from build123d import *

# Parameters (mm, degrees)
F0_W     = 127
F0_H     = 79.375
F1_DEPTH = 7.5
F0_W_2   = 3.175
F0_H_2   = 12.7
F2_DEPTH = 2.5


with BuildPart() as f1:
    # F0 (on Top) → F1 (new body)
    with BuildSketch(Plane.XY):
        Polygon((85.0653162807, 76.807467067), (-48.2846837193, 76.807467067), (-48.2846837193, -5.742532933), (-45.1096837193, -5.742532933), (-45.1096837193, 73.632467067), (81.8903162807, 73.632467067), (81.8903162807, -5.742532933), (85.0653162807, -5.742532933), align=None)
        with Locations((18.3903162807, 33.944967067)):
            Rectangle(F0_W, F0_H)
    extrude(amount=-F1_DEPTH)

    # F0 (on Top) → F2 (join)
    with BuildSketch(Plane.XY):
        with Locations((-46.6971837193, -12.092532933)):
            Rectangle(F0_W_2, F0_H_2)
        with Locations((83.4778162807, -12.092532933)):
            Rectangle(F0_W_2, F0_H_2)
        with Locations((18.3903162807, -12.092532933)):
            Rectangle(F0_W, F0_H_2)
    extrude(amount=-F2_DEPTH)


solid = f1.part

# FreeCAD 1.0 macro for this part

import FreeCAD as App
import Part
import Sketcher
Q = App.Units.Quantity


def add_polygon(sketch, points):
    """Adds a closed chain of lines whose ends are joined by coincident constraints."""
    first, n = sketch.GeometryCount, len(points)
    for a, b in zip(points, points[1:] + points[:1]):
        sketch.addGeometry(Part.LineSegment(App.Vector(*a, 0), App.Vector(*b, 0)), False)
    for i in range(n):
        sketch.addConstraint(Sketcher.Constraint("Coincident", first + i, 2, first + (i + 1) % n, 1))

doc = App.newDocument("Part")
body = doc.addObject("PartDesign::Body", "Body")

sketch1 = doc.addObject("Sketcher::SketchObject", "Sketch")
body.addObject(sketch1)
sketch1.AttachmentSupport = (doc.XY_Plane, [""])
sketch1.MapMode = "FlatFace"
add_polygon(sketch1, [(85, 77), (-48, 77), (-48, -6), (85, -6)])
sketch1.addConstraint([
    Sketcher.Constraint("Horizontal", 0),
    Sketcher.Constraint("Vertical", 1),
    Sketcher.Constraint("Horizontal", 2),
    Sketcher.Constraint("Vertical", 3),
    Sketcher.Constraint("DistanceX", 0, 2, 0, 1, Q("5.25 in")),
    Sketcher.Constraint("DistanceY", 1, 2, 1, 1, Q("3.25 in")),
    Sketcher.Constraint("DistanceX", 0, 2, -1, 1, 48.284684),
    Sketcher.Constraint("DistanceY", -1, 1, 0, 2, 76.807467),
])
pad1 = doc.addObject("PartDesign::Pad", "Pad")
body.addObject(pad1)
pad1.Profile = sketch1
pad1.Length = 7.5
pad1.Reversed = True

sketch2 = doc.addObject("Sketcher::SketchObject", "Sketch001")
body.addObject(sketch2)
sketch2.AttachmentSupport = (doc.XY_Plane, [""])
sketch2.MapMode = "FlatFace"
add_polygon(sketch2, [(-48, -6), (-48, -18), (85, -18), (85, -6)])
sketch2.addConstraint([
    Sketcher.Constraint("Vertical", 0),
    Sketcher.Constraint("Horizontal", 1),
    Sketcher.Constraint("Vertical", 2),
    Sketcher.Constraint("Horizontal", 3),
    Sketcher.Constraint("DistanceY", 0, 2, 0, 1, Q("0.5 in")),
    Sketcher.Constraint("DistanceX", 1, 1, 1, 2, Q("5.25 in")),
    Sketcher.Constraint("DistanceX", 0, 2, -1, 1, 48.284684),
    Sketcher.Constraint("DistanceY", 0, 2, -1, 1, 18.442533),
])
pad2 = doc.addObject("PartDesign::Pad", "Pad001")
body.addObject(pad2)
pad2.Profile = sketch2
pad2.Length = 2.5
pad2.Reversed = True

doc.recompute()
